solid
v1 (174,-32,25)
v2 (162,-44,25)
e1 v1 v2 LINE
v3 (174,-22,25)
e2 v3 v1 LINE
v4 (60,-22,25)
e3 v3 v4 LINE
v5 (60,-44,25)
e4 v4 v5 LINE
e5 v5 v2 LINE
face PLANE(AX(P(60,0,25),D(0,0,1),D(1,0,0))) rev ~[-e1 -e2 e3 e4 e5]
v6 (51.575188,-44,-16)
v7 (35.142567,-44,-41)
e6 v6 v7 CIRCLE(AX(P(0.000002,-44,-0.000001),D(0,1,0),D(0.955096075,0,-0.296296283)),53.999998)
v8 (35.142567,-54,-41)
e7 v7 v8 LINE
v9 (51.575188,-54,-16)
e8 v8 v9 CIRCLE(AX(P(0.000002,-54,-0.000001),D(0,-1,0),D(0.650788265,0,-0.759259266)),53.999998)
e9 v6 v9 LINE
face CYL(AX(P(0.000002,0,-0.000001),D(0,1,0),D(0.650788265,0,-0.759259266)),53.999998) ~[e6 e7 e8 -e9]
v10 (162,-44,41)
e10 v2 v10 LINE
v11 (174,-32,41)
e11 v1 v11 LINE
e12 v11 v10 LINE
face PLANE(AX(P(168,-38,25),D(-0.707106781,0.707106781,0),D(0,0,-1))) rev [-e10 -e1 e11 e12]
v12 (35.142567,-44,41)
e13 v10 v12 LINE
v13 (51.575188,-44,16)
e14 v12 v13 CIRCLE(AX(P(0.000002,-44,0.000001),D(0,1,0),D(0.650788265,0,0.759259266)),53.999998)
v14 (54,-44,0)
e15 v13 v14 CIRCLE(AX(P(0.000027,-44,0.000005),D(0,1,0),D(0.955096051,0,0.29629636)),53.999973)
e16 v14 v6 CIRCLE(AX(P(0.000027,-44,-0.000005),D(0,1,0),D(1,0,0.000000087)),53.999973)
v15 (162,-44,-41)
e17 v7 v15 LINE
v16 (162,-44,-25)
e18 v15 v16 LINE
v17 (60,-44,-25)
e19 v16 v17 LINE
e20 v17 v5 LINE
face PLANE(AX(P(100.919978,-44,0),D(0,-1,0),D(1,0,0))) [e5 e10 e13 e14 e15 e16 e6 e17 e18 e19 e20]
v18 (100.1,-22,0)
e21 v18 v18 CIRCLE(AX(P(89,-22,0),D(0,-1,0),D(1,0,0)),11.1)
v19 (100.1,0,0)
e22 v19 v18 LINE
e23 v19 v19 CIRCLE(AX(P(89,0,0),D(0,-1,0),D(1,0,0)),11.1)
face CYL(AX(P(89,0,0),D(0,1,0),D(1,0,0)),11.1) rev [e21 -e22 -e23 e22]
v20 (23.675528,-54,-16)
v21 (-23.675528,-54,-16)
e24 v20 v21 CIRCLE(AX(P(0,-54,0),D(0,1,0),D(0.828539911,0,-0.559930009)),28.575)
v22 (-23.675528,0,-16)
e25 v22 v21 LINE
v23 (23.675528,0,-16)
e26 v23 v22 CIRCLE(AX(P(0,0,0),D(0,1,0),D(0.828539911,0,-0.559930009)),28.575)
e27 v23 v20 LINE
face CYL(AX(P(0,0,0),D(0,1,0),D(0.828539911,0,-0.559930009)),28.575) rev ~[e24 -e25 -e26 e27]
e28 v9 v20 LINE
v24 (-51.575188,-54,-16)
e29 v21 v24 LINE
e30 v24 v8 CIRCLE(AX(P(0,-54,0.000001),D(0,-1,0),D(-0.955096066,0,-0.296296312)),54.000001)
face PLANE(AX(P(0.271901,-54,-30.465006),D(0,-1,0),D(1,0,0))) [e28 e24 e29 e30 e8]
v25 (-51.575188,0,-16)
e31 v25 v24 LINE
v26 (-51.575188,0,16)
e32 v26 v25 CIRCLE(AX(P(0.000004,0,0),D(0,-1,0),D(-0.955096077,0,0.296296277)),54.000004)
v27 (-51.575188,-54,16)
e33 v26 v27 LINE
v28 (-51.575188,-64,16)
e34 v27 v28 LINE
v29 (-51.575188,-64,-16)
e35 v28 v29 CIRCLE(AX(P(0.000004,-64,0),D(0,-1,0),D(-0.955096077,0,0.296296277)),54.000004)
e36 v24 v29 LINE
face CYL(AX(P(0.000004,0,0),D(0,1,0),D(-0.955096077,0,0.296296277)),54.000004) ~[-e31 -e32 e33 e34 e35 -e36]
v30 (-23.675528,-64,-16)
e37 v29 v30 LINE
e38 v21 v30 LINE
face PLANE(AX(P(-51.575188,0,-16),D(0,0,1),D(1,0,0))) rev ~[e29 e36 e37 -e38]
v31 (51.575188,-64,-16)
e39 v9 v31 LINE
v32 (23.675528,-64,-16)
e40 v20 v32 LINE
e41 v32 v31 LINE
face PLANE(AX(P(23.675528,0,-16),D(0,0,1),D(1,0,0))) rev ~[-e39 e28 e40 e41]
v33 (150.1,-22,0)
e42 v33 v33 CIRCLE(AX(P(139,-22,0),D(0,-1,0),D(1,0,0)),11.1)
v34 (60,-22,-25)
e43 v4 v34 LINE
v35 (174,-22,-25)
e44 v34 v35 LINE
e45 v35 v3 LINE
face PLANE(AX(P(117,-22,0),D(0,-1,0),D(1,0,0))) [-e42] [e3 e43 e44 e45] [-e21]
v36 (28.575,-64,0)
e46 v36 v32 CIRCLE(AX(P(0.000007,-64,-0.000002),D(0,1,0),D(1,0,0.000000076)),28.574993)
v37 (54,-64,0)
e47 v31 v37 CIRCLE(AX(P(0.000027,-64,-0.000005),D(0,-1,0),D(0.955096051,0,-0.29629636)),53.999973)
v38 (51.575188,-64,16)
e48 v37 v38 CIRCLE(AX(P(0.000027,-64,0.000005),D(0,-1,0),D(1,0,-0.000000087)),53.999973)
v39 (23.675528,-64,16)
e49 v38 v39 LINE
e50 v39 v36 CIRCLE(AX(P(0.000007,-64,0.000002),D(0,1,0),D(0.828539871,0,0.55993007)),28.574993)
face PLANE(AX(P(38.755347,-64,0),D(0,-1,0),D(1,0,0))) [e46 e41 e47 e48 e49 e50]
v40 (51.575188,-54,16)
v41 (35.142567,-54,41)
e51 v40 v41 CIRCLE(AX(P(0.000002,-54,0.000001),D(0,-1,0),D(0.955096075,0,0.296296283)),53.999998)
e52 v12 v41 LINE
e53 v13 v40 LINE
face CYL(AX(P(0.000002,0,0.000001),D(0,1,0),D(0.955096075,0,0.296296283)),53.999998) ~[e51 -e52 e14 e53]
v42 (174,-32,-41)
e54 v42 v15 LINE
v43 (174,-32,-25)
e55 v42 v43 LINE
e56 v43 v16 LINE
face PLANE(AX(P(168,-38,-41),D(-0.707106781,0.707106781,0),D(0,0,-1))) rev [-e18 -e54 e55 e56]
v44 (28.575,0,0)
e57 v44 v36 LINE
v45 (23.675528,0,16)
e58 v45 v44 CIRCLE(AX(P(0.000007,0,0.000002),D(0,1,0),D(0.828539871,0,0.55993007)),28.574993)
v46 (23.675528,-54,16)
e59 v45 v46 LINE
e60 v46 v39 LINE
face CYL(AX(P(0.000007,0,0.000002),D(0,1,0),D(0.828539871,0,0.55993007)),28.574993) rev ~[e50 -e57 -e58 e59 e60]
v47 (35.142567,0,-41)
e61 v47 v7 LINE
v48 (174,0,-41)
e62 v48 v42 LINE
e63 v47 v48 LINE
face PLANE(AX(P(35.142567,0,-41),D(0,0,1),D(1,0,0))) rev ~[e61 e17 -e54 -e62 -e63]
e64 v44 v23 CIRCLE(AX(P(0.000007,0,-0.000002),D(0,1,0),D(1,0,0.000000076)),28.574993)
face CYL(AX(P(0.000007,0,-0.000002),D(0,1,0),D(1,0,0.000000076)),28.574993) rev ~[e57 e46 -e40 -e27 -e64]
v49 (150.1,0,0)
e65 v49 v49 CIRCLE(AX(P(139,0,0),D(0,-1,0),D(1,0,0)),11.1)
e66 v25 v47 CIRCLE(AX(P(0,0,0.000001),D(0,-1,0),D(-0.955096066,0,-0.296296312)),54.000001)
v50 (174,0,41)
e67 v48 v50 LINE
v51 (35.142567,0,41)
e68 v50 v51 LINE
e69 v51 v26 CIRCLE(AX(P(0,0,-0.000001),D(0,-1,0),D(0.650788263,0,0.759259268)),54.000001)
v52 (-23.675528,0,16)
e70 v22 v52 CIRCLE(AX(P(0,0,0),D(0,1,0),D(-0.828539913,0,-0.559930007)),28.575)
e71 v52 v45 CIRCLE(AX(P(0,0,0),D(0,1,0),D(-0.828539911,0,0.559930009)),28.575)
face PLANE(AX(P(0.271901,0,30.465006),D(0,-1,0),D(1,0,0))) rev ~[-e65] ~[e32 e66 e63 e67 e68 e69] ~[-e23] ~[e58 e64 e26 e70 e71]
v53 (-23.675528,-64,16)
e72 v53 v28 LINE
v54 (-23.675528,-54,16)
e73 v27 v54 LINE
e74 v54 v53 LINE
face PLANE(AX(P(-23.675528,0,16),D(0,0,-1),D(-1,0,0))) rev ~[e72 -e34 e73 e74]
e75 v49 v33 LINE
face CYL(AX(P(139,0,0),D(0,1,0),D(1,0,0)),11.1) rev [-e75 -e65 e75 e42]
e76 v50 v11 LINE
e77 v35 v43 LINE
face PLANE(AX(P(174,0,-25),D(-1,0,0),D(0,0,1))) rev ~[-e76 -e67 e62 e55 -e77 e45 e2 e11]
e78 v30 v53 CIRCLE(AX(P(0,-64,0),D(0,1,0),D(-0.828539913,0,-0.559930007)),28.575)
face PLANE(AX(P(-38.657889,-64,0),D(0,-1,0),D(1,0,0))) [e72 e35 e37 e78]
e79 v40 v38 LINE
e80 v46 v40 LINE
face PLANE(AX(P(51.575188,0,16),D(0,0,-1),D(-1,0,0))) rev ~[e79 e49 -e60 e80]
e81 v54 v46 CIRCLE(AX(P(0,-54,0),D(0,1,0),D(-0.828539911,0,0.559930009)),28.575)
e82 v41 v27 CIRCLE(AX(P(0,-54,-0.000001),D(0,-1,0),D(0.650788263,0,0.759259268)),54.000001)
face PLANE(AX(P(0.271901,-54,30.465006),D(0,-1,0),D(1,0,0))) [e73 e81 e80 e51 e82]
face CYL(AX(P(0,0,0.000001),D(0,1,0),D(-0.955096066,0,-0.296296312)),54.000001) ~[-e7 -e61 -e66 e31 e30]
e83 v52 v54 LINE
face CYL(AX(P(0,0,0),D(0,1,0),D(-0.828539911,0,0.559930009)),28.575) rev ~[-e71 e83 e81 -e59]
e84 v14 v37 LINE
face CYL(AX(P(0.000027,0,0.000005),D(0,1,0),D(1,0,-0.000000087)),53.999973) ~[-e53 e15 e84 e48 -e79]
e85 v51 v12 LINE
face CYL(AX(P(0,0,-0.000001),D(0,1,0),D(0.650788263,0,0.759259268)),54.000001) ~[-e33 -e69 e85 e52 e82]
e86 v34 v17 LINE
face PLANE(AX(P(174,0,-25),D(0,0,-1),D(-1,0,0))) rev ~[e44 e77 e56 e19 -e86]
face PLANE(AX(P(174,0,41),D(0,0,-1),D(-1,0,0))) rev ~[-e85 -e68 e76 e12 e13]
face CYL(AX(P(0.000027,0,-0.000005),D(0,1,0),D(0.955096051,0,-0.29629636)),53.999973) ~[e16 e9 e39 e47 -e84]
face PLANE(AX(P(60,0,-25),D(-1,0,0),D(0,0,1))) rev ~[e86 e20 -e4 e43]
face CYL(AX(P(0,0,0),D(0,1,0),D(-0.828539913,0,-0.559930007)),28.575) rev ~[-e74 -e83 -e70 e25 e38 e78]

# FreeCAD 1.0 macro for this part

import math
import FreeCAD as App
import Part
import Sketcher

V = App.Vector
Q = App.Units.Quantity


def edges_at(feature, points):
    """Names of the edges that pass closest to the given points."""
    edges = feature.Shape.Edges
    near = lambda p: min(range(len(edges)), key=lambda i: edges[i].distToShape(Part.Vertex(*p))[0])
    return sorted({f"Edge{near(p) + 1}" for p in points})


def add_polygon(sketch, points):
    """Adds a closed chain of lines whose ends are joined by coincident constraints."""
    first, n = sketch.GeometryCount, len(points)
    for a, b in zip(points, points[1:] + points[:1]):
        sketch.addGeometry(Part.LineSegment(App.Vector(*a, 0), App.Vector(*b, 0)), False)
    for i in range(n):
        sketch.addConstraint(Sketcher.Constraint("Coincident", first + i, 2, first + (i + 1) % n, 1))

doc = App.newDocument("Part")
body = doc.addObject("PartDesign::Body", "Body")
body.AllowCompound = True

# Sketch on XZ plane
sketch1 = body.newObject("Sketcher::SketchObject", "Sketch")
sketch1.AttachmentSupport = (doc.getObject("XZ_Plane"), [""])
sketch1.MapMode = "FlatFace"
sketch1.addGeometry([
    Part.ArcOfCircle(Part.Circle(V(0.000002, 0.000001, 0), V(0, 0, 1), 53.999998), math.radians(17.235284), math.radians(49.39894)),  # 0
    Part.ArcOfCircle(Part.Circle(V(0.000027, 0.000005, 0), V(0, 0, 1), 53.999973), math.radians(-0.000005), math.radians(17.235289)),  # 1
    Part.ArcOfCircle(Part.Circle(V(0.000027, -0.000005, 0), V(0, 0, 1), 53.999973), math.radians(-17.235289), math.radians(0.000005)),  # 2
    Part.ArcOfCircle(Part.Circle(V(0.000002, -0.000001, 0), V(0, 0, 1), 53.999998), math.radians(-49.39894), math.radians(-17.235284)),  # 3
    Part.LineSegment(V(35.142567, -41, 0), V(174, -41, 0)),  # 4
    Part.LineSegment(V(174, -41, 0), V(174, -25, 0)),  # 5
    Part.LineSegment(V(174, -25, 0), V(60, -25, 0)),  # 6
    Part.LineSegment(V(60, -25, 0), V(60, 25, 0)),  # 7
    Part.LineSegment(V(60, 25, 0), V(174, 25, 0)),  # 8
    Part.LineSegment(V(174, 25, 0), V(174, 41, 0)),  # 9
    Part.LineSegment(V(174, 41, 0), V(35.142567, 41, 0)),  # 10
], False)
sketch1.addConstraint([
    Sketcher.Constraint("Coincident", 0, 1, 1, 2),
    Sketcher.Constraint("Coincident", 1, 1, 2, 2),
    Sketcher.Constraint("Coincident", 2, 1, 3, 2),
    Sketcher.Constraint("Coincident", 3, 1, 4, 1),
    Sketcher.Constraint("Coincident", 4, 2, 5, 1),
    Sketcher.Constraint("Coincident", 5, 2, 6, 1),
    Sketcher.Constraint("Coincident", 6, 2, 7, 1),
    Sketcher.Constraint("Coincident", 7, 2, 8, 1),
    Sketcher.Constraint("Coincident", 8, 2, 9, 1),
    Sketcher.Constraint("Coincident", 9, 2, 10, 1),
    Sketcher.Constraint("Coincident", 10, 2, 0, 2),
    Sketcher.Constraint("Horizontal", 4),
    Sketcher.Constraint("Vertical", 5),
    Sketcher.Constraint("Horizontal", 6),
    Sketcher.Constraint("Vertical", 7),
    Sketcher.Constraint("Horizontal", 8),
    Sketcher.Constraint("Vertical", 9),
    Sketcher.Constraint("Horizontal", 10),
    Sketcher.Constraint("Coincident", 0, 3, -1, 1),
    Sketcher.Constraint("Coincident", 3, 3, -1, 1),
    Sketcher.Constraint("Coincident", 2, 3, 1, 3),
    Sketcher.Constraint("PointOnObject", 1, 1, -1),
    Sketcher.Constraint("DistanceX", 6, 2, 6, 1, Q("114 mm")),
    Sketcher.Constraint("DistanceX", 8, 1, 8, 2, Q("114 mm")),
    Sketcher.Constraint("DistanceY", 5, 1, 5, 2, Q("16 mm")),
    Sketcher.Constraint("DistanceY", 7, 1, 7, 2, Q("50 mm")),
    Sketcher.Constraint("DistanceY", 9, 1, 9, 2, Q("16 mm")),
    Sketcher.Constraint("DistanceY", -1, 1, 0, 1, Q("16 mm")),
    Sketcher.Constraint("DistanceX", -1, 1, 1, 1, Q("54 mm")),
    Sketcher.Constraint("DistanceY", 2, 1, -1, 1, Q("16 mm")),
    Sketcher.Constraint("DistanceY", 3, 1, -1, 1, Q("41 mm")),
    Sketcher.Constraint("DistanceX", -1, 1, 4, 2, Q("174 mm")),
    Sketcher.Constraint("Radius", 0, Q("53.999998 mm")),
    Sketcher.Constraint("Radius", 1, Q("53.999973 mm")),
])
pad1 = body.newObject("PartDesign::Pad", "Pad")
pad1.Profile = sketch1
pad1.Length = 44

# Sketch on XZ plane
sketch2 = body.newObject("Sketcher::SketchObject", "Sketch001")
sketch2.AttachmentSupport = (doc.getObject("XZ_Plane"), [""])
sketch2.MapMode = "FlatFace"
add_polygon(sketch2, [(174, 25), (60, 25), (60, -25), (174, -25)])  # lines 0-3
sketch2.addGeometry(Part.Circle(V(89, 0, 0), V(0, 0, 1), 11), False)  # 4
sketch2.addGeometry(Part.Circle(V(139, 0, 0), V(0, 0, 1), 11), False)  # 5
sketch2.addConstraint([
    Sketcher.Constraint("Horizontal", 0),
    Sketcher.Constraint("Vertical", 1),
    Sketcher.Constraint("Horizontal", 2),
    Sketcher.Constraint("Vertical", 3),
    Sketcher.Constraint("Equal", 4, 5),
    Sketcher.Constraint("PointOnObject", 4, 3, -1),
    Sketcher.Constraint("PointOnObject", 5, 3, -1),
    Sketcher.Constraint("Diameter", 4, Q("22.2 mm")),
    Sketcher.Constraint("DistanceX", 0, 2, 0, 1, Q("114 mm")),
    Sketcher.Constraint("DistanceY", 1, 2, 1, 1, Q("50 mm")),
    Sketcher.Constraint("DistanceX", -1, 1, 4, 3, Q("89 mm")),
    Sketcher.Constraint("DistanceX", -1, 1, 5, 3, Q("139 mm")),
    Sketcher.Constraint("DistanceX", -1, 1, 0, 2, Q("60 mm")),
    Sketcher.Constraint("DistanceY", -1, 1, 0, 2, Q("25 mm")),
])
pad2 = body.newObject("PartDesign::Pad", "Pad001")
pad2.Profile = sketch2
pad2.Length = 22

# Sketch on XZ plane
sketch3 = body.newObject("Sketcher::SketchObject", "Sketch002")
sketch3.AttachmentSupport = (doc.getObject("XZ_Plane"), [""])
sketch3.MapMode = "FlatFace"
sketch3.addGeometry([
    Part.ArcOfCircle(Part.Circle(V(0, 0, 0), V(0, 0, 1), 28.575), math.radians(145.949043), math.radians(214.050957)),  # 0
    Part.LineSegment(V(-23.675528, 16, 0), V(-51.575188, 16, 0)),  # 1
    Part.ArcOfCircle(Part.Circle(V(0.000004, 0, 0), V(0, 0, 1), 54.000004), math.radians(162.764716), math.radians(197.235284)),  # 2
    Part.LineSegment(V(-51.575188, -16, 0), V(-23.675528, -16, 0)),  # 3
    Part.ArcOfCircle(Part.Circle(V(0.000007, 0.000002, 0), V(0, 0, 1), 28.574993), math.radians(-0.000004), math.radians(34.050962)),  # 4
    Part.ArcOfCircle(Part.Circle(V(0.000007, -0.000002, 0), V(0, 0, 1), 28.574993), math.radians(-34.050962), math.radians(0.000004)),  # 5
    Part.LineSegment(V(23.675528, -16, 0), V(51.575188, -16, 0)),  # 6
    Part.ArcOfCircle(Part.Circle(V(0.000027, -0.000005, 0), V(0, 0, 1), 53.999973), math.radians(-17.235289), math.radians(0.000005)),  # 7
    Part.ArcOfCircle(Part.Circle(V(0.000027, 0.000005, 0), V(0, 0, 1), 53.999973), math.radians(-0.000005), math.radians(17.235289)),  # 8
    Part.LineSegment(V(51.575188, 16, 0), V(23.675528, 16, 0)),  # 9
], False)
sketch3.addConstraint([
    Sketcher.Constraint("Coincident", 0, 1, 1, 1),
    Sketcher.Constraint("Coincident", 1, 2, 2, 1),
    Sketcher.Constraint("Coincident", 2, 2, 3, 1),
    Sketcher.Constraint("Coincident", 3, 2, 0, 2),
    Sketcher.Constraint("Coincident", 4, 1, 5, 2),
    Sketcher.Constraint("Coincident", 5, 1, 6, 1),
    Sketcher.Constraint("Coincident", 6, 2, 7, 1),
    Sketcher.Constraint("Coincident", 7, 2, 8, 1),
    Sketcher.Constraint("Coincident", 8, 2, 9, 1),
    Sketcher.Constraint("Coincident", 9, 2, 4, 2),
    Sketcher.Constraint("Horizontal", 1),
    Sketcher.Constraint("Horizontal", 3),
    Sketcher.Constraint("Horizontal", 6),
    Sketcher.Constraint("Horizontal", 9),
    Sketcher.Constraint("Coincident", 0, 3, -1, 1),
    Sketcher.Constraint("Coincident", 2, 3, -1, 1),
    Sketcher.Constraint("Coincident", 4, 3, -1, 1),
    Sketcher.Constraint("Coincident", 5, 3, -1, 1),
    Sketcher.Constraint("Coincident", 8, 3, 7, 3),
    Sketcher.Constraint("PointOnObject", 4, 1, -1),
    Sketcher.Constraint("PointOnObject", 7, 2, -1),
    Sketcher.Constraint("DistanceY", -1, 1, 0, 1, Q("16 mm")),
    Sketcher.Constraint("DistanceY", 2, 2, -1, 1, Q("16 mm")),
    Sketcher.Constraint("DistanceY", 5, 1, -1, 1, Q("16 mm")),
    Sketcher.Constraint("DistanceX", -1, 1, 7, 2, Q("54 mm")),
    Sketcher.Constraint("DistanceY", -1, 1, 8, 2, Q("16 mm")),
    Sketcher.Constraint("Radius", 0, Q("28.575 mm")),
    Sketcher.Constraint("DistanceX", -1, 1, 4, 1, Q("28.575 mm")),
    Sketcher.Constraint("Radius", 2, Q("54.000004 mm")),
    Sketcher.Constraint("Radius", 7, Q("53.999973 mm")),
    Sketcher.Constraint("DistanceX", 6, 1, 6, 2, Q("27.89966 mm")),
])
pad3 = body.newObject("PartDesign::Pad", "Pad002")
pad3.Profile = sketch3
pad3.Length = 64

# Sketch on XZ plane
sketch4 = body.newObject("Sketcher::SketchObject", "Sketch003")
sketch4.AttachmentSupport = (doc.getObject("XZ_Plane"), [""])
sketch4.MapMode = "FlatFace"
sketch4.addGeometry([
    Part.ArcOfCircle(Part.Circle(V(0, 0, 0), V(0, 0, 1), 29), math.radians(34), math.radians(146)),  # 0
    Part.LineSegment(V(24, 16, 0), V(52, 16, 0)),  # 1
    Part.ArcOfCircle(Part.Circle(V(0, 0, 0), V(0, 0, 1), 54), math.radians(17), math.radians(49)),  # 2
    Part.ArcOfCircle(Part.Circle(V(0, 0, 0), V(0, 0, 1), 54), math.radians(49), math.radians(163)),  # 3
    Part.LineSegment(V(-52, 16, 0), V(-24, 16, 0)),  # 4
    Part.LineSegment(V(52, -16, 0), V(24, -16, 0)),  # 5
    Part.ArcOfCircle(Part.Circle(V(0, 0, 0), V(0, 0, 1), 29), math.radians(-146), math.radians(-34)),  # 6
    Part.LineSegment(V(-24, -16, 0), V(-52, -16, 0)),  # 7
    Part.ArcOfCircle(Part.Circle(V(0, 0, 0), V(0, 0, 1), 54), math.radians(-163), math.radians(-49)),  # 8
    Part.ArcOfCircle(Part.Circle(V(0, 0, 0), V(0, 0, 1), 54), math.radians(-49), math.radians(-17)),  # 9
], False)
sketch4.addConstraint([
    Sketcher.Constraint("Coincident", 0, 1, 1, 1),
    Sketcher.Constraint("Coincident", 1, 2, 2, 1),
    Sketcher.Constraint("Tangent", 2, 2, 3, 1),
    Sketcher.Constraint("Coincident", 3, 2, 4, 1),
    Sketcher.Constraint("Coincident", 4, 2, 0, 2),
    Sketcher.Constraint("Coincident", 5, 2, 6, 2),
    Sketcher.Constraint("Coincident", 6, 1, 7, 1),
    Sketcher.Constraint("Coincident", 7, 2, 8, 1),
    Sketcher.Constraint("Tangent", 8, 2, 9, 1),
    Sketcher.Constraint("Coincident", 9, 2, 5, 1),
    Sketcher.Constraint("Horizontal", 1),
    Sketcher.Constraint("Horizontal", 4),
    Sketcher.Constraint("Horizontal", 5),
    Sketcher.Constraint("Horizontal", 7),
    Sketcher.Constraint("Coincident", 0, 3, -1, 1),
    Sketcher.Constraint("Coincident", 2, 3, -1, 1),
    Sketcher.Constraint("Coincident", 6, 3, -1, 1),
    Sketcher.Constraint("Coincident", 8, 3, -1, 1),
    Sketcher.Constraint("Equal", 0, 6),
    Sketcher.Constraint("Equal", 3, 8),
    Sketcher.Constraint("Equal", 2, 9),
    Sketcher.Constraint("Symmetric", 1, 2, 7, 2, -1, 1),
    Sketcher.Constraint("Horizontal", 1, 2, 3, 2),
    Sketcher.Constraint("Horizontal", 5, 2, 6, 1),
    Sketcher.Constraint("Vertical", 2, 2, 8, 2),
    Sketcher.Constraint("Radius", 3, Q("54.000001 mm")),
    Sketcher.Constraint("DistanceY", -1, 1, 0, 1, Q("16 mm")),
    Sketcher.Constraint("DistanceY", -1, 1, 2, 2, Q("41 mm")),
    Sketcher.Constraint("Radius", 0, Q("28.575 mm")),
])
pad4 = body.newObject("PartDesign::Pad", "Pad003")
pad4.Profile = sketch4
pad4.Length = 54
doc.recompute()

chamfer = body.newObject("PartDesign::Chamfer", "Chamfer")
chamfer.Base = (pad4, edges_at(pad4, [(174, -44, -33), (174, -44, 33)]))
chamfer.Size = 12

doc.recompute()
